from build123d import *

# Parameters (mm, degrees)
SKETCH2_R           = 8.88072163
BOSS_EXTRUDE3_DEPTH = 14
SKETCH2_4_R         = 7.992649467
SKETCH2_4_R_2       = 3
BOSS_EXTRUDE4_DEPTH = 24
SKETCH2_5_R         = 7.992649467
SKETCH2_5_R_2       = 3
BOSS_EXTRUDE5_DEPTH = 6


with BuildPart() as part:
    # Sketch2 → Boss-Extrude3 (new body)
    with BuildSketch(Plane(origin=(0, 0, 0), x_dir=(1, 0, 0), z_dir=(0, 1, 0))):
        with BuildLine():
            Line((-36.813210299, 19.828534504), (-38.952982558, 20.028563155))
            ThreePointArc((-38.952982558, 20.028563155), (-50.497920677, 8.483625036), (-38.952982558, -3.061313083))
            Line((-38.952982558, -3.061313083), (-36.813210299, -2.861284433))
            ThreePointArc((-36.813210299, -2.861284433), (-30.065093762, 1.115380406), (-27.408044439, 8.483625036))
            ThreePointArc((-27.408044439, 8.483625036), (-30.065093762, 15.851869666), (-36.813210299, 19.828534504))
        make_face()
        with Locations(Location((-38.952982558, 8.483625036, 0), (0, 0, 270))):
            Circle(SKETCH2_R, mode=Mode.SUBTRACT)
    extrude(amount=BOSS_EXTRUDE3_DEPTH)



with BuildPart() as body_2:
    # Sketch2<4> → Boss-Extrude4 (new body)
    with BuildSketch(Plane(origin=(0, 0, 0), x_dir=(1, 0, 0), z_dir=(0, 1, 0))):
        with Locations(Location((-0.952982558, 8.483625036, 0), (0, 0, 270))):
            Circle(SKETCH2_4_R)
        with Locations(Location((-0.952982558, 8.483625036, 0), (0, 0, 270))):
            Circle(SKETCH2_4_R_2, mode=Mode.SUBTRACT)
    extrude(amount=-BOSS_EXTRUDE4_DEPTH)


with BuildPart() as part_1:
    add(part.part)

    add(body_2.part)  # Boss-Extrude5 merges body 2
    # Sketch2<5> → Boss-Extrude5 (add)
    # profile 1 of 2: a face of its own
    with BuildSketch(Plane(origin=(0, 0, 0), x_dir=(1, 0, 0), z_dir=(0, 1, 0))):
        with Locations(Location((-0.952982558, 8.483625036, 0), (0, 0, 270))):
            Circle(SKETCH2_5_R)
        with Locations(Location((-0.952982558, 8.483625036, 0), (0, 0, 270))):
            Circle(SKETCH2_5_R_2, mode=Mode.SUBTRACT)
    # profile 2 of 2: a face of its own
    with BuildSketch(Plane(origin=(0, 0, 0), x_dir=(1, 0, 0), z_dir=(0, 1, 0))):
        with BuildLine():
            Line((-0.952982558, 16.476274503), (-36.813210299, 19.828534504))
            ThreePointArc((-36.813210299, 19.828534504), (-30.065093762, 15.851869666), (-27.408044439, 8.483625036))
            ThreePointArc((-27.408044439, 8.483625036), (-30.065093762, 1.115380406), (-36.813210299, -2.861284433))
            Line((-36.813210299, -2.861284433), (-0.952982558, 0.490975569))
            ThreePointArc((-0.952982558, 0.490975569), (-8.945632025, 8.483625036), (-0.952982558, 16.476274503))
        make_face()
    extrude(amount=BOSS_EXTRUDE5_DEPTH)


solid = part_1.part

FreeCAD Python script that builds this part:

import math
import FreeCAD as App
import Part
import Sketcher
Q = App.Units.Quantity

doc = App.newDocument("Part")
params = doc.addObject("Spreadsheet::Sheet", "Params")
for row, (alias, value) in enumerate([
    ("pad1_length", "14 mm"),
    ("sketch2_diameter", "6 mm"),
    ("pad2_length", "24 mm"),
    ("sketch3_diameter", "6 mm"),
    ("pad3_length", "6 mm"),
], start=1):
    params.set(f"A{row}", alias)
    params.set(f"B{row}", "=" + value)
    params.setAlias(f"B{row}", alias)

body = doc.addObject("PartDesign::Body", "Body")

sketch1 = body.newObject("Sketcher::SketchObject", "Sketch")
sketch1.AttachmentSupport = (doc.getObject("XZ_Plane"), [""])
sketch1.MapMode = "FlatFace"
sketch1.addGeometry([
    Part.LineSegment(App.Vector(-36.8, -19.8, 0), App.Vector(-39, -20, 0)),
    Part.ArcOfCircle(Part.Circle(App.Vector(-39, -8.5, 0), App.Vector(0, 0, 1), 11.5), math.radians(90), math.radians(270)),
    Part.LineSegment(App.Vector(-39, 3.1, 0), App.Vector(-36.8, 2.9, 0)),
    Part.ArcOfCircle(Part.Circle(App.Vector(-39, -8.5, 0), App.Vector(0, 0, 1), 11.5), math.radians(0), math.radians(79)),
    Part.ArcOfCircle(Part.Circle(App.Vector(-39, -8.5, 0), App.Vector(0, 0, 1), 11.5), math.radians(-79), math.radians(0)),
    Part.Circle(App.Vector(-39, -8.5, 0), App.Vector(0, 0, 1), 8.9),
], False)
sketch1.addConstraint([
    Sketcher.Constraint("Coincident", 0, 2, 1, 2),
    Sketcher.Constraint("Coincident", 1, 1, 2, 1),
    Sketcher.Constraint("Coincident", 2, 2, 3, 2),
    Sketcher.Constraint("Tangent", 3, 1, 4, 2),
    Sketcher.Constraint("Coincident", 4, 1, 0, 1),
    Sketcher.Constraint("Coincident", 3, 3, 1, 3),
    Sketcher.Constraint("Coincident", 5, 3, 1, 3),
    Sketcher.Constraint("Equal", 1, 3),
    Sketcher.Constraint("Equal", 3, 4),
    Sketcher.Constraint("Horizontal", 5, 3, 3, 1),
    Sketcher.Constraint("Vertical", 5, 3, 0, 2),
    Sketcher.Constraint("Vertical", 0, 2, 1, 1),
    Sketcher.Constraint("Vertical", 2, 2, 4, 1),
    Sketcher.Constraint("Radius", 1, Q("11.544938 mm")),
    Sketcher.Constraint("Diameter", 5, Q("17.761443 mm")),
    Sketcher.Constraint("Distance", 0, Q("2.149101 mm")),
    Sketcher.Constraint("DistanceX", 2, 2, -1, 1, Q("36.81321 mm")),
    Sketcher.Constraint("DistanceY", 1, 3, -1, 1, Q("8.483625 mm")),
])
pad1 = body.newObject("PartDesign::Pad", "Pad")
pad1.Profile = sketch1
pad1.setExpression("Length", "Params.pad1_length")
pad1.Reversed = True
body2 = doc.addObject("PartDesign::Body", "Body001")

sketch2 = body2.newObject("Sketcher::SketchObject", "Sketch001")
sketch2.AttachmentSupport = (doc.getObject("XZ_Plane001"), [""])
sketch2.MapMode = "FlatFace"
sketch2.addGeometry([
    Part.Circle(App.Vector(-1, -8.5, 0), App.Vector(0, 0, 1), 8),
    Part.Circle(App.Vector(-1, -8.5, 0), App.Vector(0, 0, 1), 3),
], False)
sketch2.addConstraint([
    Sketcher.Constraint("Coincident", 1, 3, 0, 3),
    Sketcher.Constraint("Diameter", 1, Q("6 mm")),
    Sketcher.Constraint("Diameter", 0, Q("15.985299 mm")),
    Sketcher.Constraint("DistanceX", 0, 3, -1, 1, Q("0.952983 mm")),
    Sketcher.Constraint("DistanceY", 0, 3, -1, 1, Q("8.483625 mm")),
])
sketch2.setExpression("Constraints[1]", "Params.sketch2_diameter")
pad2 = body2.newObject("PartDesign::Pad", "Pad001")
pad2.Profile = sketch2
pad2.setExpression("Length", "Params.pad2_length")
body.AllowCompound = True
doc.recompute()

boolean = body.newObject("PartDesign::Boolean", "Boolean")
boolean.Type = "Fuse"
boolean.addObjects([body2])

sketch3 = body.newObject("Sketcher::SketchObject", "Sketch002")
sketch3.AttachmentSupport = (doc.getObject("XZ_Plane"), [""])
sketch3.MapMode = "FlatFace"
sketch3.addGeometry([
    Part.ArcOfCircle(Part.Circle(App.Vector(-1, -8.5, 0), App.Vector(0, 0, 1), 8), math.radians(-90), math.radians(90)),
    Part.LineSegment(App.Vector(-1, -16.5, 0), App.Vector(-36.8, -19.8, 0)),
    Part.ArcOfCircle(Part.Circle(App.Vector(-39, -8.5, 0), App.Vector(0, 0, 1), 11.5), math.radians(-79), math.radians(0)),
    Part.ArcOfCircle(Part.Circle(App.Vector(-39, -8.5, 0), App.Vector(0, 0, 1), 11.5), math.radians(0), math.radians(79)),
    Part.LineSegment(App.Vector(-36.8, 2.9, 0), App.Vector(-1, -0.5, 0)),
    Part.Circle(App.Vector(-1, -8.5, 0), App.Vector(0, 0, 1), 3),
], False)
sketch3.addConstraint([
    Sketcher.Constraint("Coincident", 0, 1, 1, 1),
    Sketcher.Constraint("Coincident", 1, 2, 2, 1),
    Sketcher.Constraint("Tangent", 2, 2, 3, 1),
    Sketcher.Constraint("Coincident", 3, 2, 4, 1),
    Sketcher.Constraint("Coincident", 4, 2, 0, 2),
    Sketcher.Constraint("Coincident", 5, 3, 0, 3),
    Sketcher.Constraint("Equal", 2, 3),
    Sketcher.Constraint("Horizontal", 0, 3, 2, 3),
    Sketcher.Constraint("Horizontal", 5, 3, 2, 2),
    Sketcher.Constraint("Vertical", 5, 3, 0, 1),
    Sketcher.Constraint("Vertical", 1, 2, 3, 2),
    Sketcher.Constraint("Vertical", 0, 1, 4, 2),
    Sketcher.Constraint("Diameter", 5, Q("6 mm")),
    Sketcher.Constraint("DistanceX", 2, 3, 0, 3, Q("38 mm")),
    Sketcher.Constraint("Radius", 0, Q("7.992649 mm")),
    Sketcher.Constraint("Radius", 2, Q("11.544938 mm")),
    Sketcher.Constraint("DistanceX", 1, 2, -1, 1, Q("36.81321 mm")),
    Sketcher.Constraint("DistanceY", 1, 2, 2, 3, Q("11.344909 mm")),
    Sketcher.Constraint("DistanceY", 0, 3, -1, 1, Q("8.483625 mm")),
])
sketch3.setExpression("Constraints[12]", "Params.sketch3_diameter")
pad3 = body.newObject("PartDesign::Pad", "Pad002")
pad3.Profile = sketch3
pad3.setExpression("Length", "Params.pad3_length")
pad3.Reversed = True

doc.recompute()
